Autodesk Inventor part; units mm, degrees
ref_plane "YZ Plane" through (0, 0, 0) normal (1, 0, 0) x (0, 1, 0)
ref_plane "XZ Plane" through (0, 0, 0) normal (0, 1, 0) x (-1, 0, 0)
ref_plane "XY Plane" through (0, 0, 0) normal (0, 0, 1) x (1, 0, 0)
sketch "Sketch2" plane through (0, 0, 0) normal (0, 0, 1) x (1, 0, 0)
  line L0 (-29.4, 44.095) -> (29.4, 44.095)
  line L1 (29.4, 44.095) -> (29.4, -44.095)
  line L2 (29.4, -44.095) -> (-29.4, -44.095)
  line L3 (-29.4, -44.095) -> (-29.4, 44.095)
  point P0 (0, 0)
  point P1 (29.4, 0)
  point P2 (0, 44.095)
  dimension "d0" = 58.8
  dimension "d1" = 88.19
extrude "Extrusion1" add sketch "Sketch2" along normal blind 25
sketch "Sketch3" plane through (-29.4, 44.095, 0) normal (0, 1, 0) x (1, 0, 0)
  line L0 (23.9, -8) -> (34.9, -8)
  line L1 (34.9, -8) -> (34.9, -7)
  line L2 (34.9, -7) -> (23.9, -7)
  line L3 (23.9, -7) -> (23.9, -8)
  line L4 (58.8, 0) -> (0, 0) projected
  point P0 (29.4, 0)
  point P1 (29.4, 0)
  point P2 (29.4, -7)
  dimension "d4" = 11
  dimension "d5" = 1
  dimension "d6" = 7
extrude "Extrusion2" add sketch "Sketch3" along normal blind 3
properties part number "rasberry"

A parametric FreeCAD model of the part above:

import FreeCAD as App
import Part
import Sketcher
from FreeCAD import Vector
Q = App.Units.Quantity


def add_polygon(sketch, points):
    """Adds a closed chain of lines whose ends are joined by coincident constraints."""
    first, n = sketch.GeometryCount, len(points)
    for a, b in zip(points, points[1:] + points[:1]):
        sketch.addGeometry(Part.LineSegment(App.Vector(*a, 0), App.Vector(*b, 0)), False)
    for i in range(n):
        sketch.addConstraint(Sketcher.Constraint("Coincident", first + i, 2, first + (i + 1) % n, 1))

doc = App.newDocument("Part")
body = doc.addObject("PartDesign::Body", "Body")

sketch1 = body.newObject("Sketcher::SketchObject", "Sketch")
sketch1.AttachmentSupport = (doc.getObject("XY_Plane"), [""])
sketch1.MapMode = "FlatFace"
add_polygon(sketch1, [(29, 44), (-29, 44), (-29, -44), (29, -44)])
sketch1.addConstraint([
    Sketcher.Constraint("Horizontal", 0),
    Sketcher.Constraint("Vertical", 1),
    Sketcher.Constraint("Horizontal", 2),
    Sketcher.Constraint("Vertical", 3),
    Sketcher.Constraint("Symmetric", 0, 2, 2, 2, -1, 1),
    Sketcher.Constraint("DistanceX", 0, 2, 0, 1, Q("58.8 mm")),
    Sketcher.Constraint("DistanceY", 1, 2, 1, 1, Q("88.19 mm")),
])
pad1 = body.newObject("PartDesign::Pad", "Pad")
pad1.Profile = sketch1
pad1.Length = 25

sketch2 = body.newObject("Sketcher::SketchObject", "Sketch001")
sketch2.AttachmentSupport = (doc.getObject("XZ_Plane"), [""])
sketch2.MapMode = "FlatFace"
sketch2.AttachmentOffset = App.Placement(Vector(0, 0, -44.095), App.Rotation())
add_polygon(sketch2, [(-5.5, 7), (-5.5, 8), (5.5, 8), (5.5, 7)])
sketch2.addConstraint([
    Sketcher.Constraint("Vertical", 0),
    Sketcher.Constraint("Horizontal", 1),
    Sketcher.Constraint("Vertical", 2),
    Sketcher.Constraint("Horizontal", 3),
    Sketcher.Constraint("DistanceX", 1, 1, 1, 2, Q("11 mm")),
    Sketcher.Constraint("DistanceY", 0, 1, 0, 2, Q("1 mm")),
    Sketcher.Constraint("DistanceY", -1, 1, 2, 2, Q("7 mm")),
    Sketcher.Constraint("DistanceX", 0, 2, -1, 1, Q("5.5 mm")),
])
pad2 = body.newObject("PartDesign::Pad", "Pad001")
pad2.Profile = sketch2
pad2.Length = 3
pad2.Reversed = True

doc.recompute()
